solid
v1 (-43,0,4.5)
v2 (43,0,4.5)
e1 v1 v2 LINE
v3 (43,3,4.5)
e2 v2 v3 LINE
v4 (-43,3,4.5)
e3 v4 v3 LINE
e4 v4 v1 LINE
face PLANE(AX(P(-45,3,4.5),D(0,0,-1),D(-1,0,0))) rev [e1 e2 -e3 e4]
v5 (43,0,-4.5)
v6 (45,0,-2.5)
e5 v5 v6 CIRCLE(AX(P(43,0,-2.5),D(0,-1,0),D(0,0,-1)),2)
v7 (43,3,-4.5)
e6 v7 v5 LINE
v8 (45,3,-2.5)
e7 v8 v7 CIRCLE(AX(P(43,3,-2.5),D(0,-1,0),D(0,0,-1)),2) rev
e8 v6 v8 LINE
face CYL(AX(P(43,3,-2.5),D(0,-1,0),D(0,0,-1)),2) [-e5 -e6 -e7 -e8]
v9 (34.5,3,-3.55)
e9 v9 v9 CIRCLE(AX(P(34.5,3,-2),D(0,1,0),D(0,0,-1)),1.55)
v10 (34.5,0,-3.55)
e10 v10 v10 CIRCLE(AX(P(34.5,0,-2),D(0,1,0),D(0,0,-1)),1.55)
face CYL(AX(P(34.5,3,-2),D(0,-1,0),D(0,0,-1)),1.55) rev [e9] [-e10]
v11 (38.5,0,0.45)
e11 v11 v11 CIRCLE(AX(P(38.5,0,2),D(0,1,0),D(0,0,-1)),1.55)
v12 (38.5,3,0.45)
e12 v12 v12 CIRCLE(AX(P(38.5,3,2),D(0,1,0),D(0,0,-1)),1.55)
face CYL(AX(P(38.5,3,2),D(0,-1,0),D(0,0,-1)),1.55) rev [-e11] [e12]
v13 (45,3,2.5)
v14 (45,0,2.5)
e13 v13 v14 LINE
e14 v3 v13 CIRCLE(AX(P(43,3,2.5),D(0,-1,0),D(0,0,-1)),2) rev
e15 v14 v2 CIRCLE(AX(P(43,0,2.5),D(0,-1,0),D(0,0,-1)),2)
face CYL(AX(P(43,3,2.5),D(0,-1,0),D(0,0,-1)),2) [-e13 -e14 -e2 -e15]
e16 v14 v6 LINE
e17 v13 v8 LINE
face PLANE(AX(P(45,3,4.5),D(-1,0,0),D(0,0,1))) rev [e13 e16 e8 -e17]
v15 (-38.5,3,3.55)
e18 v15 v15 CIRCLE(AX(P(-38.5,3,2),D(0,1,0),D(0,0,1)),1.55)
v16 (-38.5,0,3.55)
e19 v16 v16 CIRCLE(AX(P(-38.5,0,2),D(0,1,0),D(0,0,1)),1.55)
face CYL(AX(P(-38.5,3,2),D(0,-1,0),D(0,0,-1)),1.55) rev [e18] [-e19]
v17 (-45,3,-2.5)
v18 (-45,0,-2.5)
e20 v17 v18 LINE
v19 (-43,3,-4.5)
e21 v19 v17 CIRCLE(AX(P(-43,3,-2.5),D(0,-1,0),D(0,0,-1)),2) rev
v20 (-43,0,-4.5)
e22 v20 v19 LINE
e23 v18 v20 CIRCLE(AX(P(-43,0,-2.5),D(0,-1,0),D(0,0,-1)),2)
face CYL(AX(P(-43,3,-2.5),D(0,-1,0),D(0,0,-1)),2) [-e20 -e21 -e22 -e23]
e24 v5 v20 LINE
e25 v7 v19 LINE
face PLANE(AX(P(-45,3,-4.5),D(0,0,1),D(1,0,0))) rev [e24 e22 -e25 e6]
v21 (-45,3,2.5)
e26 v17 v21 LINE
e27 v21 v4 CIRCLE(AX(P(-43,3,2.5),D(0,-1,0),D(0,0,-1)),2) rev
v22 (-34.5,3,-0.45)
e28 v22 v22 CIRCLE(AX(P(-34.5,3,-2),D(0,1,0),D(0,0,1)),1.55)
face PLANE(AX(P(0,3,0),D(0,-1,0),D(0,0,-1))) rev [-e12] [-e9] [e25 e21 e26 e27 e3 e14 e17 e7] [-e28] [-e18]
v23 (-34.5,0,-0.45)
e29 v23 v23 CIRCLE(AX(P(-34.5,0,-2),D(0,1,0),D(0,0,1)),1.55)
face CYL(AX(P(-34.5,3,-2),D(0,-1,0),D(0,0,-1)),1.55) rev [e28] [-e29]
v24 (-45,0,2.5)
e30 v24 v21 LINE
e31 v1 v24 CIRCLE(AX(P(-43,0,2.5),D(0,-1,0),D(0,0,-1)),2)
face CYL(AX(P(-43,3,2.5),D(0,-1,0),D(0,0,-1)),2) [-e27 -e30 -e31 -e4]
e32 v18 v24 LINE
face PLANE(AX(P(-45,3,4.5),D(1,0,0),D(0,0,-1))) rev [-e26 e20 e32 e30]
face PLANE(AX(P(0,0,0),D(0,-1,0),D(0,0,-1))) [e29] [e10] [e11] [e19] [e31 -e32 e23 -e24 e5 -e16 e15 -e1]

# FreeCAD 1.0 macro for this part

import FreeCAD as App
import Part
import Sketcher

V = App.Vector


def edges_at(feature, points):
    """Names of the edges that pass closest to the given points."""
    edges = feature.Shape.Edges
    near = lambda p: min(range(len(edges)), key=lambda i: edges[i].distToShape(Part.Vertex(*p))[0])
    return sorted({f"Edge{near(p) + 1}" for p in points})


def add_polygon(sketch, points):
    """Adds a closed chain of lines whose ends are joined by coincident constraints."""
    first, n = sketch.GeometryCount, len(points)
    for a, b in zip(points, points[1:] + points[:1]):
        sketch.addGeometry(Part.LineSegment(App.Vector(*a, 0), App.Vector(*b, 0)), False)
    for i in range(n):
        sketch.addConstraint(Sketcher.Constraint("Coincident", first + i, 2, first + (i + 1) % n, 1))

doc = App.newDocument("Part")
body = doc.addObject("PartDesign::Body", "Body")

sketch1 = body.newObject("Sketcher::SketchObject", "Sketch")
sketch1.AttachmentSupport = (doc.getObject("XZ_Plane"), [""])
sketch1.MapMode = "FlatFace"
add_polygon(sketch1, [(-45, -4.5), (-45, 4.5), (45, 4.5), (45, -4.5)])
sketch1.addGeometry(Part.Circle(V(-38.5, 2, 0), V(0, 0, 1), 1.6), False)
sketch1.addGeometry(Part.Circle(V(38.5, 2, 0), V(0, 0, 1), 1.6), False)
sketch1.addGeometry(Part.Circle(V(-34.5, -2, 0), V(0, 0, 1), 1.6), False)
sketch1.addGeometry(Part.Circle(V(34.5, -2, 0), V(0, 0, 1), 1.6), False)
sketch1.addConstraint(Sketcher.Constraint("Vertical", 0))
sketch1.addConstraint(Sketcher.Constraint("Horizontal", 1))
sketch1.addConstraint(Sketcher.Constraint("Vertical", 2))
sketch1.addConstraint(Sketcher.Constraint("Horizontal", 3))
sketch1.addConstraint(Sketcher.Constraint("Equal", 4, 5))
sketch1.addConstraint(Sketcher.Constraint("Equal", 5, 6))
sketch1.addConstraint(Sketcher.Constraint("Equal", 6, 7))
sketch1.addConstraint(Sketcher.Constraint("Symmetric", 0, 2, 2, 2, -1, 1))
sketch1.addConstraint(Sketcher.Constraint("Symmetric", 4, 3, 5, 3, -2))
sketch1.addConstraint(Sketcher.Constraint("Symmetric", 6, 3, 7, 3, -2))
sketch1.addConstraint(Sketcher.Constraint("Diameter", 4, 3.1))
sketch1.addConstraint(Sketcher.Constraint("DistanceX", 1, 1, 1, 2, 90.0))
sketch1.addConstraint(Sketcher.Constraint("DistanceY", 0, 1, 0, 2, 9.0))
sketch1.addConstraint(Sketcher.Constraint("DistanceY", -1, 1, 4, 3, 2.0))
sketch1.addConstraint(Sketcher.Constraint("DistanceY", 6, 3, -1, 1, 2.0))
sketch1.addConstraint(Sketcher.Constraint("DistanceX", 4, 3, 5, 3, 77.0))
sketch1.addConstraint(Sketcher.Constraint("DistanceX", 4, 3, 6, 3, 4.0))
pad1 = body.newObject("PartDesign::Pad", "Pad")
pad1.Profile = sketch1
pad1.Length = 3
pad1.Reversed = True
doc.recompute()

fillet = body.newObject("PartDesign::Fillet", "Fillet")
fillet.Base = (pad1, edges_at(pad1, [
    (45, 1.5, 4.5),
    (-45, 1.5, 4.5),
    (-45, 1.5, -4.5),
    (45, 1.5, -4.5),
]))
fillet.Radius = 2

doc.recompute()
